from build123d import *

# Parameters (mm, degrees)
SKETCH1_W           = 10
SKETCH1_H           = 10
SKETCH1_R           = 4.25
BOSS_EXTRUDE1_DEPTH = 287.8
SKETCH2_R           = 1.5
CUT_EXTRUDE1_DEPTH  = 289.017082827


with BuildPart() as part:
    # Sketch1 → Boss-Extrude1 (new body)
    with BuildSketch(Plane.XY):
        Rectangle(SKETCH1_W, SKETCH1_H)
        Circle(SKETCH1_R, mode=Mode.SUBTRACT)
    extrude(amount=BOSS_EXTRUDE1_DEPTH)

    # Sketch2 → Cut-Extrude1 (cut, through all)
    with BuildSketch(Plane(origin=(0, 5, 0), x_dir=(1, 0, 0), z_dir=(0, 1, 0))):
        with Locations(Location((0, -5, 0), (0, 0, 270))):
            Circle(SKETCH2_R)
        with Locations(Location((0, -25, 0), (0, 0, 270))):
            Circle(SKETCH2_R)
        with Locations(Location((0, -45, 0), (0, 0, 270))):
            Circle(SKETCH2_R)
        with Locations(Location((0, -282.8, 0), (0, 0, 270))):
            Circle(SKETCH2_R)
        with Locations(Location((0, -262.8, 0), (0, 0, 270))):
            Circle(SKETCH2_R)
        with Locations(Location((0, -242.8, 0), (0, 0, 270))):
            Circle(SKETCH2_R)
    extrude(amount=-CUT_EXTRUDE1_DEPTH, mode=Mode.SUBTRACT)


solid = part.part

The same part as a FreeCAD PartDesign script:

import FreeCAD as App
import Part
import Sketcher

V = App.Vector


def add_polygon(sketch, points):
    """Adds a closed chain of lines whose ends are joined by coincident constraints."""
    first, n = sketch.GeometryCount, len(points)
    for a, b in zip(points, points[1:] + points[:1]):
        sketch.addGeometry(Part.LineSegment(App.Vector(*a, 0), App.Vector(*b, 0)), False)
    for i in range(n):
        sketch.addConstraint(Sketcher.Constraint("Coincident", first + i, 2, first + (i + 1) % n, 1))

doc = App.newDocument("Part")
body = doc.addObject("PartDesign::Body", "Body")

sketch1 = body.newObject("Sketcher::SketchObject", "Sketch")
sketch1.AttachmentSupport = (doc.getObject("XY_Plane"), [""])
sketch1.MapMode = "FlatFace"
add_polygon(sketch1, [(-5, 5), (-5, -5), (5, -5), (5, 5)])
sketch1.addGeometry(Part.Circle(V(0, 0, 0), V(0, 0, 1), 4.25), False)
sketch1.addConstraint([
    Sketcher.Constraint("Vertical", 0),
    Sketcher.Constraint("Horizontal", 1),
    Sketcher.Constraint("Vertical", 2),
    Sketcher.Constraint("Horizontal", 3),
    Sketcher.Constraint("Coincident", 4, 3, -1, 1),
    Sketcher.Constraint("Symmetric", 0, 2, 2, 2, -1, 1),
    Sketcher.Constraint("Equal", 3, 0),
    Sketcher.Constraint("Diameter", 4, 8.5),
    Sketcher.Constraint("DistanceX", 1, 1, 1, 2, 10.0),
])
pad1 = body.newObject("PartDesign::Pad", "Pad")
pad1.Profile = sketch1
pad1.Length = 287.8

sketch2 = body.newObject("Sketcher::SketchObject", "Sketch001")
sketch2.AttachmentSupport = (doc.getObject("XZ_Plane"), [""])
sketch2.MapMode = "FlatFace"
sketch2.AttachmentOffset = App.Placement(V(0, 0, -5), App.Rotation())
sketch2.addGeometry([
    Part.Circle(V(0, 5, 0), V(0, 0, 1), 1.5),
    Part.Circle(V(0, 25, 0), V(0, 0, 1), 1.5),
    Part.Circle(V(0, 45, 0), V(0, 0, 1), 1.5),
    Part.Circle(V(0, 282.8, 0), V(0, 0, 1), 1.5),
    Part.Circle(V(0, 262.8, 0), V(0, 0, 1), 1.5),
    Part.Circle(V(0, 242.8, 0), V(0, 0, 1), 1.5),
], False)
sketch2.addConstraint([
    Sketcher.Constraint("Equal", 0, 1),
    Sketcher.Constraint("Equal", 1, 2),
    Sketcher.Constraint("Equal", 2, 3),
    Sketcher.Constraint("Equal", 3, 4),
    Sketcher.Constraint("Equal", 4, 5),
    Sketcher.Constraint("PointOnObject", 0, 3, -2),
    Sketcher.Constraint("PointOnObject", 1, 3, -2),
    Sketcher.Constraint("PointOnObject", 2, 3, -2),
    Sketcher.Constraint("PointOnObject", 3, 3, -2),
    Sketcher.Constraint("PointOnObject", 4, 3, -2),
    Sketcher.Constraint("PointOnObject", 5, 3, -2),
    Sketcher.Constraint("Diameter", 0, 3.0),
    Sketcher.Constraint("DistanceY", -1, 1, 0, 3, 5.0),
    Sketcher.Constraint("DistanceY", -1, 1, 1, 3, 25.0),
    Sketcher.Constraint("DistanceY", -1, 1, 2, 3, 45.0),
    Sketcher.Constraint("DistanceY", 4, 3, 3, 3, 20.0),
    Sketcher.Constraint("DistanceY", 5, 3, 4, 3, 20.0),
    Sketcher.Constraint("DistanceY", -1, 1, 3, 3, 282.8),
])
pocket1 = body.newObject("PartDesign::Pocket", "Pocket")
pocket1.Profile = sketch2
pocket1.Type = "ThroughAll"
pocket1.Reversed = True

doc.recompute()
